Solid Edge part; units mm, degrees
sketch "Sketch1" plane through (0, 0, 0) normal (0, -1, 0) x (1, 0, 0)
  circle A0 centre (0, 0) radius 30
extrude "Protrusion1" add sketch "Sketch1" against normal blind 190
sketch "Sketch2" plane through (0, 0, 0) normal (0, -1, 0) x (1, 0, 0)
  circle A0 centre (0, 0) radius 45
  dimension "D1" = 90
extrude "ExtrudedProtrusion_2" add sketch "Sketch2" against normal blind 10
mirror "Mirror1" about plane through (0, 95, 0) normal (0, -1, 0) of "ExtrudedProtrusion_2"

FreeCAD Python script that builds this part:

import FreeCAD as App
import Part
import Sketcher

doc = App.newDocument("Part")
body = doc.addObject("PartDesign::Body", "Body")

# Sketch on XZ plane
sketch1 = doc.addObject("Sketcher::SketchObject", "Sketch")
body.addObject(sketch1)
sketch1.AttachmentSupport = (doc.XZ_Plane, [""])
sketch1.MapMode = "FlatFace"
sketch1.addGeometry(Part.Circle(App.Vector(0, 0, 0), App.Vector(0, 0, 1), 30), False)
sketch1.addConstraint(Sketcher.Constraint("Coincident", 0, 3, -1, 1))
sketch1.addConstraint(Sketcher.Constraint("Diameter", 0, 60.0))
pad1 = doc.addObject("PartDesign::Pad", "Pad")
body.addObject(pad1)
pad1.Profile = sketch1
pad1.Length = 190
pad1.Reversed = True

# Sketch on XZ plane
sketch2 = doc.addObject("Sketcher::SketchObject", "Sketch001")
body.addObject(sketch2)
sketch2.AttachmentSupport = (doc.XZ_Plane, [""])
sketch2.MapMode = "FlatFace"
sketch2.addGeometry(Part.Circle(App.Vector(0, 0, 0), App.Vector(0, 0, 1), 45), False)
sketch2.addConstraint(Sketcher.Constraint("Coincident", 0, 3, -1, 1))
sketch2.addConstraint(Sketcher.Constraint("Diameter", 0, 90.0))
pad2 = doc.addObject("PartDesign::Pad", "Pad001")
body.addObject(pad2)
pad2.Profile = sketch2
pad2.Length = 10
pad2.Reversed = True
doc.recompute()

datumplane = doc.addObject("PartDesign::Plane", "DatumPlane")
body.addObject(datumplane)
datumplane.AttachmentSupport = (doc.XZ_Plane, [""])
datumplane.MapMode = "FlatFace"
datumplane.AttachmentOffset = App.Placement(App.Vector(0, 0, -95), App.Rotation())
mirrored = doc.addObject("PartDesign::Mirrored", "Mirrored")
body.addObject(mirrored)
mirrored.Originals = [pad2]
mirrored.MirrorPlane = (datumplane, [""])
body.Tip = mirrored

doc.recompute()
